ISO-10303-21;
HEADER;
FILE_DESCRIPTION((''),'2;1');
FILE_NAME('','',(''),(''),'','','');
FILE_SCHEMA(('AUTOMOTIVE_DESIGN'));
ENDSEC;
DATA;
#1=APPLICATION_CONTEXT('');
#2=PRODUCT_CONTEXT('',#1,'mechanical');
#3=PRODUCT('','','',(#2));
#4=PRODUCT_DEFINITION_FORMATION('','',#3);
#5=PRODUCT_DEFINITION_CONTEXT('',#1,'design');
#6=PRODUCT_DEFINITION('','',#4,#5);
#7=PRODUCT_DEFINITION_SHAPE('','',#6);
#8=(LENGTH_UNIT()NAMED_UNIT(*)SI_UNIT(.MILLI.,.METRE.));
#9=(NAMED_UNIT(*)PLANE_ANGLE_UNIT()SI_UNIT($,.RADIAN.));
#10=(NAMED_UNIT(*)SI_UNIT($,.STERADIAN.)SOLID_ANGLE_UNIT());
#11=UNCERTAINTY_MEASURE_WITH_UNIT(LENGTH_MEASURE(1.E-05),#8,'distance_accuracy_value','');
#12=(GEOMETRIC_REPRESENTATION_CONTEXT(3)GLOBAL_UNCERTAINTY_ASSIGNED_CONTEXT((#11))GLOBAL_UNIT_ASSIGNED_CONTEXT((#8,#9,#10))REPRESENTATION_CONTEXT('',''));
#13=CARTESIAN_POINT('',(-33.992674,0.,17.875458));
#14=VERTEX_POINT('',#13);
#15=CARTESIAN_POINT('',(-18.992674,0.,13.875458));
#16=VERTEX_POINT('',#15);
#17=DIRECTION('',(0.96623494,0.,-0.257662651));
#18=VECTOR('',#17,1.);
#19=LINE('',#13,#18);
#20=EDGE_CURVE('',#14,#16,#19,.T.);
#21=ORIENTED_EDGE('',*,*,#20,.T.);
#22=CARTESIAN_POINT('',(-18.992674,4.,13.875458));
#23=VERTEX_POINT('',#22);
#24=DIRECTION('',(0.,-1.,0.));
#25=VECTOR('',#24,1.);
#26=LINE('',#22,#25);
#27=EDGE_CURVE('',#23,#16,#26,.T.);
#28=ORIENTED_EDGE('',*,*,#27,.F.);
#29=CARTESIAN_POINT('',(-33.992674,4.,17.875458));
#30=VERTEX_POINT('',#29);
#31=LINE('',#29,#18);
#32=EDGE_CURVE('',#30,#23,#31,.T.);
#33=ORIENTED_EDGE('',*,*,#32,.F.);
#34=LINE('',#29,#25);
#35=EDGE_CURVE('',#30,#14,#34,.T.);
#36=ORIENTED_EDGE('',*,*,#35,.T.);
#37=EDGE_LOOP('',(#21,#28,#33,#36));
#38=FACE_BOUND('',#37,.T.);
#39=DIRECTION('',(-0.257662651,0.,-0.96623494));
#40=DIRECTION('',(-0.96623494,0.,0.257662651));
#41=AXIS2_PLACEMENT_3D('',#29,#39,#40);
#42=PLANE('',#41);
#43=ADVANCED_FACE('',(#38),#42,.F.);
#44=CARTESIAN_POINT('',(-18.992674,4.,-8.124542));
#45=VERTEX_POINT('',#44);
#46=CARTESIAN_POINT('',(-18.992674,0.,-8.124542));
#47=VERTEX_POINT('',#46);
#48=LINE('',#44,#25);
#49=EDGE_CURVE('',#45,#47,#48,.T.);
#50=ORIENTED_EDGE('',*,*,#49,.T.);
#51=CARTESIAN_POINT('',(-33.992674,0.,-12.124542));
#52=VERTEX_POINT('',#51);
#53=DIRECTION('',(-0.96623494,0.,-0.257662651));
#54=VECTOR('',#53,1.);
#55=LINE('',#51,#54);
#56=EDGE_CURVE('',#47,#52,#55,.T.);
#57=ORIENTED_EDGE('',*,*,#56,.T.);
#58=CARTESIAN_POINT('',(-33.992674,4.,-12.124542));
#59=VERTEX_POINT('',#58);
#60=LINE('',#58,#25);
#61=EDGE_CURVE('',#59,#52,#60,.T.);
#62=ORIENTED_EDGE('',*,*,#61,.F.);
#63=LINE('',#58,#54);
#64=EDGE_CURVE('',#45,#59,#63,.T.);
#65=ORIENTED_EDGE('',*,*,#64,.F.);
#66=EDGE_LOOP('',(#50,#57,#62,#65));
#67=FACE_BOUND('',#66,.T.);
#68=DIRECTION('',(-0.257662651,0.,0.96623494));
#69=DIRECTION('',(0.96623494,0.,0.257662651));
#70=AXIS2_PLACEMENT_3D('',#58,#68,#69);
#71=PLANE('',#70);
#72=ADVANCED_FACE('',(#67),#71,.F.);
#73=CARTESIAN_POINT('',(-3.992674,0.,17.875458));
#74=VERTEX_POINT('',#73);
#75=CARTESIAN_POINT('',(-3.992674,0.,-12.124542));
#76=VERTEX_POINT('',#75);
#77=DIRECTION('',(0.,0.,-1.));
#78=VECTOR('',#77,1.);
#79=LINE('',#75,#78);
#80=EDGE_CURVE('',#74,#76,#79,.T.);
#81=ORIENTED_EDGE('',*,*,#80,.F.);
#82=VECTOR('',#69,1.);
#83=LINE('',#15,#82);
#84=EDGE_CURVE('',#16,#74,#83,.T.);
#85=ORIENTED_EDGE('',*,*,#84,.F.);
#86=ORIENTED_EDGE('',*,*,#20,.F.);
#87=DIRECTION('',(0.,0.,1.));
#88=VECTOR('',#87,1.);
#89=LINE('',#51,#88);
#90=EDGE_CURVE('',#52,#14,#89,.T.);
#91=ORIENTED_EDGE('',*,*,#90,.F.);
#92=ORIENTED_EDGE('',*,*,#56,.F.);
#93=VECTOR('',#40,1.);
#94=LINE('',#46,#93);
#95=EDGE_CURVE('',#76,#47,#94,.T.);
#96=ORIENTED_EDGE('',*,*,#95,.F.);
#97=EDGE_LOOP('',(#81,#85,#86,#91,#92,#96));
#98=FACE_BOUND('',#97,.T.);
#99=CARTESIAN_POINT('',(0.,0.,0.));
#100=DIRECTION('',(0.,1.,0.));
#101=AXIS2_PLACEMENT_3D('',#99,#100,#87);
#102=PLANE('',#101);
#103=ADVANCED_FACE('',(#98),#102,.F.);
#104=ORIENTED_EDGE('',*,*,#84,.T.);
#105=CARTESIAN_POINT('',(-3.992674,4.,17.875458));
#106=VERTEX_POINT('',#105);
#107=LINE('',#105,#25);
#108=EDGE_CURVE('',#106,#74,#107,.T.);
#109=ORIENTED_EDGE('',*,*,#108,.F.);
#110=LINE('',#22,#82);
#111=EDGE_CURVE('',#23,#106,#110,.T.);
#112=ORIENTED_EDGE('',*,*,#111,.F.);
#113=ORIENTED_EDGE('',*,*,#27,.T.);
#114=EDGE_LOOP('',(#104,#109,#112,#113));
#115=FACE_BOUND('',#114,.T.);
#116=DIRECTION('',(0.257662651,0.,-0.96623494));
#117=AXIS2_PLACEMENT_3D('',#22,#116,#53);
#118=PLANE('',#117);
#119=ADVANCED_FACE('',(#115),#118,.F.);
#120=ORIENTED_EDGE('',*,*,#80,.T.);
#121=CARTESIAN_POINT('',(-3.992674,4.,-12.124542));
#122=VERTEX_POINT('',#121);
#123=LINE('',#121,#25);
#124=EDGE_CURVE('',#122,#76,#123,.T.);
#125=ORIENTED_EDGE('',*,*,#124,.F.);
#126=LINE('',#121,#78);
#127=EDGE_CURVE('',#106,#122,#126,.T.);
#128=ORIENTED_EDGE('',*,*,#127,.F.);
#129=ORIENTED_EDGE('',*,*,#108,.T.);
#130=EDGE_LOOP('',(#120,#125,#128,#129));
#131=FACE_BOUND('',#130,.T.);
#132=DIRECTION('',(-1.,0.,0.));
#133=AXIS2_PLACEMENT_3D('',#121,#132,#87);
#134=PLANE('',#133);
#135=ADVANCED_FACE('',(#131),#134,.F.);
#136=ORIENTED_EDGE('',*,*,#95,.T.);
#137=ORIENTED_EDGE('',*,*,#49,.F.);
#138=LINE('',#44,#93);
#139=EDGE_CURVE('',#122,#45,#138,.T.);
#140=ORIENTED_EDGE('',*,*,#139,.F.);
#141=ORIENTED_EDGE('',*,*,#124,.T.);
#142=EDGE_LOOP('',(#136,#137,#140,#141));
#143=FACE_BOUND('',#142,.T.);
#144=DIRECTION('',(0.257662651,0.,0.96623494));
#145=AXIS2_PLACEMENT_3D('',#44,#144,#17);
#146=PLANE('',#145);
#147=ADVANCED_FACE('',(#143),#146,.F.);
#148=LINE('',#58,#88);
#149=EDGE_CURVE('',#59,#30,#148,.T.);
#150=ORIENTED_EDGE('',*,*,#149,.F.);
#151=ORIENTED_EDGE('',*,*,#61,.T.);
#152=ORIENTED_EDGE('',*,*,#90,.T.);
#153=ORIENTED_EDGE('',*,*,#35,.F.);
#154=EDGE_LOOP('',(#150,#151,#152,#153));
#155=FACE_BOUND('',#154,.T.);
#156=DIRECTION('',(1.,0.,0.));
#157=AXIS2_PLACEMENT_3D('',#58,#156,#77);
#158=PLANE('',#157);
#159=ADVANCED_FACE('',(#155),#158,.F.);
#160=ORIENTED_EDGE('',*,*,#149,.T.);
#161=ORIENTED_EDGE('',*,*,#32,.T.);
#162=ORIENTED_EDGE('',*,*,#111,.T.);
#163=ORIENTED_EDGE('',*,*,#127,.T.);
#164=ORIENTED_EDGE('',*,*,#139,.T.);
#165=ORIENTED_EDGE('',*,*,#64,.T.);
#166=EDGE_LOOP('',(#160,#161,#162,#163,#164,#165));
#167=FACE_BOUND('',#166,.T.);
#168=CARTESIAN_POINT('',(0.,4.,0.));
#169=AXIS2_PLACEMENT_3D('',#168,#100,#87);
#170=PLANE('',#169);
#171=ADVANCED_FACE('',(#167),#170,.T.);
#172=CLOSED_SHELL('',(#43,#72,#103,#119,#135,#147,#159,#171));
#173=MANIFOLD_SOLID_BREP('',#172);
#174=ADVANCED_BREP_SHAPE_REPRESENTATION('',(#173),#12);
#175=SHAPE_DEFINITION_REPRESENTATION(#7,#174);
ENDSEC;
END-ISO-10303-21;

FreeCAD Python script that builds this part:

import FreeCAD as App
import Part
import Sketcher
Q = App.Units.Quantity


def add_polygon(sketch, points):
    """Adds a closed chain of lines whose ends are joined by coincident constraints."""
    first, n = sketch.GeometryCount, len(points)
    for a, b in zip(points, points[1:] + points[:1]):
        sketch.addGeometry(Part.LineSegment(App.Vector(*a, 0), App.Vector(*b, 0)), False)
    for i in range(n):
        sketch.addConstraint(Sketcher.Constraint("Coincident", first + i, 2, first + (i + 1) % n, 1))

doc = App.newDocument("Part")
body = doc.addObject("PartDesign::Body", "Body")

# Sketch on XZ plane
sketch1 = doc.addObject("Sketcher::SketchObject", "Sketch")
body.addObject(sketch1)
sketch1.AttachmentSupport = (doc.XZ_Plane, [""])
sketch1.MapMode = "FlatFace"
add_polygon(sketch1, [(-19, -8), (-34, -12), (-34, 18), (-19, 14), (-4, 18), (-4, -12)])  # lines 0-5
sketch1.addConstraint([
    Sketcher.Constraint("Vertical", 1),
    Sketcher.Constraint("Vertical", 4),
    Sketcher.Constraint("Parallel", 0, 3),
    Sketcher.Constraint("Parallel", 2, 5),
    Sketcher.Constraint("Horizontal", 1, 2, 3, 2),
    Sketcher.Constraint("Horizontal", 0, 2, 4, 2),
    Sketcher.Constraint("Vertical", 2, 2, 5, 2),
    Sketcher.Constraint("DistanceY", 1, 1, 1, 2, Q("30 mm")),
    Sketcher.Constraint("DistanceX", 1, 2, 2, 2, Q("15 mm")),
    Sketcher.Constraint("DistanceY", 2, 2, 1, 2, Q("4 mm")),
    Sketcher.Constraint("DistanceX", 0, 2, -1, 1, Q("33.992674 mm")),
    Sketcher.Constraint("DistanceY", 0, 2, -1, 1, Q("12.124542 mm")),
])
pad1 = doc.addObject("PartDesign::Pad", "Pad")
body.addObject(pad1)
pad1.Profile = sketch1
pad1.Length = 4
pad1.Reversed = True

doc.recompute()
